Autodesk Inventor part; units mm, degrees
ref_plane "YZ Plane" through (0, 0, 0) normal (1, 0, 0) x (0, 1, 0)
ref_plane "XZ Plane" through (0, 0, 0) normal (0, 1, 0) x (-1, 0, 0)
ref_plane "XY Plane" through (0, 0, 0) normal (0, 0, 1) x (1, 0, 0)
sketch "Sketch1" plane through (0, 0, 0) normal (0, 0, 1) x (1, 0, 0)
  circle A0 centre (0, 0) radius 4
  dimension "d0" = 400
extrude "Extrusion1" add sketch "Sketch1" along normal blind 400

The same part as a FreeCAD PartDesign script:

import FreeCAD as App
import Part
import Sketcher
from FreeCAD import Vector
Q = App.Units.Quantity

doc = App.newDocument("Part")
body = doc.addObject("PartDesign::Body", "Body")

sketch1 = doc.addObject("Sketcher::SketchObject", "Sketch")
body.addObject(sketch1)
sketch1.AttachmentSupport = (doc.XY_Plane, [""])
sketch1.MapMode = "FlatFace"
sketch1.addGeometry(Part.Circle(Vector(0, 0, 0), Vector(0, 0, 1), 4), False)
sketch1.addConstraint([
    Sketcher.Constraint("Coincident", 0, 3, -1, 1),
    Sketcher.Constraint("Diameter", 0, Q("8 mm")),
])
pad1 = doc.addObject("PartDesign::Pad", "Pad")
body.addObject(pad1)
pad1.Profile = sketch1
pad1.Length = 400

doc.recompute()
